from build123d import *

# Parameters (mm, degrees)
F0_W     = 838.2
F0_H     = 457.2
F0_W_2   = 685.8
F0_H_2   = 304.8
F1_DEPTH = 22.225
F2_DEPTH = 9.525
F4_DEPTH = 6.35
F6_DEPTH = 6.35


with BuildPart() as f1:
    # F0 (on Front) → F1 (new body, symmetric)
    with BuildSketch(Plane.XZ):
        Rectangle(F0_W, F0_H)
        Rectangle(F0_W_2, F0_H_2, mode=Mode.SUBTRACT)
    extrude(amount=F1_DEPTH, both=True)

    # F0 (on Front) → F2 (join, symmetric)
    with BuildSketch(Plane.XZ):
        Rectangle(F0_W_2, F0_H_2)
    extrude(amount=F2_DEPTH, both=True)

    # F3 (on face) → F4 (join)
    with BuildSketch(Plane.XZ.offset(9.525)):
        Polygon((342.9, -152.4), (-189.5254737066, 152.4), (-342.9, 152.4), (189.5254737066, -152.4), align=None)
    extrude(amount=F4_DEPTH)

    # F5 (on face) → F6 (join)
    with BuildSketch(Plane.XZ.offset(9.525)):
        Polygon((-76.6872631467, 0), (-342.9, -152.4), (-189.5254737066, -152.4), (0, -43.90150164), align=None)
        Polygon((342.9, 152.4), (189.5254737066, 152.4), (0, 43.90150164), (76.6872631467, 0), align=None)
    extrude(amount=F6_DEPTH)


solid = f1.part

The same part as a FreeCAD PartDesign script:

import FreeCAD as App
import Part
import Sketcher
from FreeCAD import Vector
Q = App.Units.Quantity


def add_polygon(sketch, points):
    """Adds a closed chain of lines whose ends are joined by coincident constraints."""
    first, n = sketch.GeometryCount, len(points)
    for a, b in zip(points, points[1:] + points[:1]):
        sketch.addGeometry(Part.LineSegment(App.Vector(*a, 0), App.Vector(*b, 0)), False)
    for i in range(n):
        sketch.addConstraint(Sketcher.Constraint("Coincident", first + i, 2, first + (i + 1) % n, 1))

doc = App.newDocument("Part")
body = doc.addObject("PartDesign::Body", "Body")

sketch1 = doc.addObject("Sketcher::SketchObject", "Sketch")
body.addObject(sketch1)
sketch1.AttachmentSupport = (doc.XZ_Plane, [""])
sketch1.MapMode = "FlatFace"
add_polygon(sketch1, [(-419, 229), (-419, -229), (419, -229), (419, 229)])
add_polygon(sketch1, [(343, -152), (-343, -152), (-343, 152), (343, 152)])
sketch1.addConstraint([
    Sketcher.Constraint("Vertical", 0),
    Sketcher.Constraint("Horizontal", 1),
    Sketcher.Constraint("Vertical", 2),
    Sketcher.Constraint("Horizontal", 3),
    Sketcher.Constraint("Horizontal", 4),
    Sketcher.Constraint("Vertical", 5),
    Sketcher.Constraint("Horizontal", 6),
    Sketcher.Constraint("Vertical", 7),
    Sketcher.Constraint("Symmetric", 0, 2, 2, 2, -1, 1),
    Sketcher.Constraint("Symmetric", 4, 2, 6, 2, -1, 1),
    Sketcher.Constraint("DistanceX", 1, 1, 1, 2, Q("33 in")),
    Sketcher.Constraint("DistanceX", 4, 2, 4, 1, Q("27 in")),
    Sketcher.Constraint("DistanceY", 0, 2, 0, 1, Q("18 in")),
    Sketcher.Constraint("DistanceY", 5, 1, 5, 2, Q("12 in")),
])
pad1 = doc.addObject("PartDesign::Pad", "Pad")
body.addObject(pad1)
pad1.Profile = sketch1
pad1.Length = Q("1.75 in")
pad1.Midplane = True

sketch2 = doc.addObject("Sketcher::SketchObject", "Sketch001")
body.addObject(sketch2)
sketch2.AttachmentSupport = (doc.XZ_Plane, [""])
sketch2.MapMode = "FlatFace"
add_polygon(sketch2, [(-343, 152), (-343, -152), (343, -152), (343, 152)])
sketch2.addConstraint([
    Sketcher.Constraint("Vertical", 0),
    Sketcher.Constraint("Horizontal", 1),
    Sketcher.Constraint("Vertical", 2),
    Sketcher.Constraint("Horizontal", 3),
    Sketcher.Constraint("Symmetric", 0, 2, 2, 2, -1, 1),
    Sketcher.Constraint("DistanceX", 1, 1, 1, 2, Q("27 in")),
    Sketcher.Constraint("DistanceY", 0, 2, 0, 1, Q("12 in")),
])
pad2 = doc.addObject("PartDesign::Pad", "Pad001")
body.addObject(pad2)
pad2.Profile = sketch2
pad2.Length = Q("0.75 in")
pad2.Midplane = True

sketch3 = doc.addObject("Sketcher::SketchObject", "Sketch002")
body.addObject(sketch3)
sketch3.AttachmentSupport = (doc.XZ_Plane, [""])
sketch3.MapMode = "FlatFace"
sketch3.AttachmentOffset = App.Placement(Vector(0, 0, 0.375 * 25.4), App.Rotation())
add_polygon(sketch3, [(343, -152), (-190, 152), (-343, 152), (190, -152)])
sketch3.addConstraint([
    Sketcher.Constraint("Horizontal", 1),
    Sketcher.Constraint("Horizontal", 3),
    Sketcher.Constraint("Symmetric", 0, 2, 2, 2, -1, 1),
    Sketcher.Constraint("Parallel", 0, 2),
    Sketcher.Constraint("DistanceY", -1, 1, 0, 2, Q("6 in")),
    Sketcher.Constraint("DistanceX", 1, 2, 3, 2, Q("27 in")),
    Sketcher.Constraint("DistanceX", 1, 2, 1, 1, Q("153.374526 mm")),
])
pad3 = doc.addObject("PartDesign::Pad", "Pad002")
body.addObject(pad3)
pad3.Profile = sketch3
pad3.Length = Q("0.25 in")

sketch4 = doc.addObject("Sketcher::SketchObject", "Sketch003")
body.addObject(sketch4)
sketch4.AttachmentSupport = (doc.XZ_Plane, [""])
sketch4.MapMode = "FlatFace"
sketch4.AttachmentOffset = App.Placement(Vector(0, 0, 0.375 * 25.4), App.Rotation())
add_polygon(sketch4, [(-77, 0), (-343, -152), (-190, -152), (0, -44)])
add_polygon(sketch4, [(343, 152), (190, 152), (0, 44), (77, 0)])
sketch4.addConstraint([
    Sketcher.Constraint("Horizontal", 1),
    Sketcher.Constraint("Horizontal", 4),
    Sketcher.Constraint("Symmetric", 1, 2, 4, 2, -1, 1),
    Sketcher.Constraint("Symmetric", 2, 2, 5, 2, -1, 1),
    Sketcher.Constraint("Symmetric", 3, 2, 6, 2, -1, 1),
    Sketcher.Constraint("PointOnObject", 2, 2, -2),
    Sketcher.Constraint("PointOnObject", 3, 2, -1),
    Sketcher.Constraint("Parallel", 0, 2),
    Sketcher.Constraint("Parallel", 5, 7),
    Sketcher.Constraint("DistanceY", 0, 2, -1, 1, Q("6 in")),
    Sketcher.Constraint("DistanceX", 0, 2, -1, 1, Q("13.5 in")),
    Sketcher.Constraint("DistanceY", 2, 2, -1, 1, Q("43.901502 mm")),
    Sketcher.Constraint("Distance", 2, Q("218.38459 mm")),
])
pad4 = doc.addObject("PartDesign::Pad", "Pad003")
body.addObject(pad4)
pad4.Profile = sketch4
pad4.Length = Q("0.25 in")

doc.recompute()
